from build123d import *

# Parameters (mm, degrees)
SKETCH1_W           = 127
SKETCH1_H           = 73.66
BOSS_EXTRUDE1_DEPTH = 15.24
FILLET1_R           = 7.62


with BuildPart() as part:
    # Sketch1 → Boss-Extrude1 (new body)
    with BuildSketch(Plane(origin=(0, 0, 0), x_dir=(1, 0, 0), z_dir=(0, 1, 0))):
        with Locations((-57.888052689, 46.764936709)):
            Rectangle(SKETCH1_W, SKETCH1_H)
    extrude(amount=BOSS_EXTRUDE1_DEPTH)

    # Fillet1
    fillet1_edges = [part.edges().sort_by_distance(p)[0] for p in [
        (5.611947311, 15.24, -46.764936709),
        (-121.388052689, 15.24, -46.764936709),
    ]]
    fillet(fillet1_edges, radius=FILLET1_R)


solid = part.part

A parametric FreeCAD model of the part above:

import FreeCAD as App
import Part
import Sketcher
from FreeCAD import Vector
Q = App.Units.Quantity


def edges_at(feature, points):
    """Names of the edges that pass closest to the given points."""
    edges = feature.Shape.Edges
    near = lambda p: min(range(len(edges)), key=lambda i: edges[i].distToShape(Part.Vertex(*p))[0])
    return sorted({f"Edge{near(p) + 1}" for p in points})


def add_polygon(sketch, points):
    """Adds a closed chain of lines whose ends are joined by coincident constraints."""
    first, n = sketch.GeometryCount, len(points)
    for a, b in zip(points, points[1:] + points[:1]):
        sketch.addGeometry(Part.LineSegment(App.Vector(*a, 0), App.Vector(*b, 0)), False)
    for i in range(n):
        sketch.addConstraint(Sketcher.Constraint("Coincident", first + i, 2, first + (i + 1) % n, 1))

doc = App.newDocument("Part")
body = doc.addObject("PartDesign::Body", "Body")

sketch1 = body.newObject("Sketcher::SketchObject", "Sketch")
sketch1.AttachmentSupport = (doc.getObject("XZ_Plane"), [""])
sketch1.MapMode = "FlatFace"
add_polygon(sketch1, [(-121.388053, -83.594937), (-121.388053, -9.934937), (5.611947, -9.934937), (5.611947, -83.594937)])
sketch1.addConstraint([
    Sketcher.Constraint("Vertical", 0),
    Sketcher.Constraint("Horizontal", 1),
    Sketcher.Constraint("Vertical", 2),
    Sketcher.Constraint("Horizontal", 3),
    Sketcher.Constraint("DistanceX", 1, 1, 1, 2, Q("5 in")),
    Sketcher.Constraint("DistanceY", 0, 1, 0, 2, Q("2.9 in")),
    Sketcher.Constraint("DistanceX", 0, 2, -1, 1, Q("121.388053 mm")),
    Sketcher.Constraint("DistanceY", 0, 2, -1, 1, Q("9.934937 mm")),
])
pad1 = body.newObject("PartDesign::Pad", "Pad")
pad1.Profile = sketch1
pad1.Length = Q("0.6 in")
pad1.Reversed = True
doc.recompute()

fillet = body.newObject("PartDesign::Fillet", "Fillet")
fillet.Base = (pad1, edges_at(pad1, [(5.612, 15.24, -46.765), (-121.388, 15.24, -46.765)]))
fillet.Radius = Q("0.3 in")

doc.recompute()
